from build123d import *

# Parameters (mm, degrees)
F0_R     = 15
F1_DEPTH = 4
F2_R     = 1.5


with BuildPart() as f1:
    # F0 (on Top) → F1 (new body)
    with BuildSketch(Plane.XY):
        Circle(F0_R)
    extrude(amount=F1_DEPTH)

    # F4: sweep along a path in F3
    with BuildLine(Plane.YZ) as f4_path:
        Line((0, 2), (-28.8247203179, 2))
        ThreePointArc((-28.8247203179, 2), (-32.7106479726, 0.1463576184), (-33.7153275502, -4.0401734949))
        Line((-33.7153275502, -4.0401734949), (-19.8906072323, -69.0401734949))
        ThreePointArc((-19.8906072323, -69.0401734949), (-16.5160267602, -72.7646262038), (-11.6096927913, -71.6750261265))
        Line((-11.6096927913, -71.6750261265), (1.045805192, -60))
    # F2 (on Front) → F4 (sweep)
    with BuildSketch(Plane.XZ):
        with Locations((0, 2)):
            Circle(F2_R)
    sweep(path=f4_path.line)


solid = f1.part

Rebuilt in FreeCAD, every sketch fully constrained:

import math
import FreeCAD as App
import Part
import Sketcher
Q = App.Units.Quantity

doc = App.newDocument("Part")
body = doc.addObject("PartDesign::Body", "Body")

# Sketch on XY plane
sketch1 = doc.addObject("Sketcher::SketchObject", "Sketch")
body.addObject(sketch1)
sketch1.AttachmentSupport = (doc.XY_Plane, [""])
sketch1.MapMode = "FlatFace"
sketch1.addGeometry(Part.Circle(App.Vector(0, 0, 0), App.Vector(0, 0, 1), 15), False)
sketch1.addConstraint([
    Sketcher.Constraint("Coincident", 0, 3, -1, 1),
    Sketcher.Constraint("Diameter", 0, Q("30 mm")),
])
pad1 = doc.addObject("PartDesign::Pad", "Pad")
body.addObject(pad1)
pad1.Profile = sketch1
pad1.Length = 4

# Sketch on XZ plane
sketch2 = doc.addObject("Sketcher::SketchObject", "Sketch001")
body.addObject(sketch2)
sketch2.AttachmentSupport = (doc.XZ_Plane, [""])
sketch2.MapMode = "FlatFace"
sketch2.addGeometry(Part.Circle(App.Vector(0, 2, 0), App.Vector(0, 0, 1), 1.5), False)
sketch2.addConstraint([
    Sketcher.Constraint("PointOnObject", 0, 3, -2),
    Sketcher.Constraint("Diameter", 0, Q("3 mm")),
    Sketcher.Constraint("DistanceY", -1, 1, 0, 3, Q("2 mm")),
])

# Sketch on YZ plane
sketch3 = doc.addObject("Sketcher::SketchObject", "Sketch002")
body.addObject(sketch3)
sketch3.AttachmentSupport = (doc.YZ_Plane, [""])
sketch3.MapMode = "FlatFace"
sketch3.addGeometry([
    Part.LineSegment(App.Vector(0, 2, 0), App.Vector(-29, 2, 0)),  # 0
    Part.ArcOfCircle(Part.Circle(App.Vector(-29, -3, 0), App.Vector(0, 0, 1), 5), math.radians(90), math.radians(192)),  # 1
    Part.LineSegment(App.Vector(-34, -4, 0), App.Vector(-20, -69, 0)),  # 2
    Part.ArcOfCircle(Part.Circle(App.Vector(-15, -68, 0), App.Vector(0, 0, 1), 5), math.radians(-168), math.radians(-47)),  # 3
    Part.LineSegment(App.Vector(-12, -72, 0), App.Vector(1, -60, 0)),  # 4
], False)
sketch3.addConstraint([
    Sketcher.Constraint("Tangent", 0, 2, 1, 1),
    Sketcher.Constraint("Tangent", 1, 2, 2, 1),
    Sketcher.Constraint("Tangent", 2, 2, 3, 1),
    Sketcher.Constraint("Tangent", 3, 2, 4, 1),
    Sketcher.Constraint("Horizontal", 0),
    Sketcher.Constraint("Equal", 1, 3),
    Sketcher.Constraint("PointOnObject", 0, 1, -2),
    Sketcher.Constraint("Radius", 1, Q("5 mm")),
    Sketcher.Constraint("DistanceY", 1, 3, -1, 1, Q("3 mm")),
    Sketcher.Constraint("DistanceX", 3, 3, -1, 1, Q("15 mm")),
    Sketcher.Constraint("DistanceY", 3, 3, -1, 1, Q("68 mm")),
    Sketcher.Constraint("DistanceY", 4, 2, -1, 1, Q("60 mm")),
    Sketcher.Constraint("DistanceX", 0, 2, 0, 1, Q("28.82472 mm")),
    Sketcher.Constraint("Distance", 4, Q("17.218242 mm")),
])
doc.recompute()

additivepipe = doc.addObject("PartDesign::AdditivePipe", "AdditivePipe")
body.addObject(additivepipe)
additivepipe.Profile = sketch2
additivepipe.Spine = (sketch3, ["Edge1", "Edge2", "Edge3", "Edge4", "Edge5"])

doc.recompute()
